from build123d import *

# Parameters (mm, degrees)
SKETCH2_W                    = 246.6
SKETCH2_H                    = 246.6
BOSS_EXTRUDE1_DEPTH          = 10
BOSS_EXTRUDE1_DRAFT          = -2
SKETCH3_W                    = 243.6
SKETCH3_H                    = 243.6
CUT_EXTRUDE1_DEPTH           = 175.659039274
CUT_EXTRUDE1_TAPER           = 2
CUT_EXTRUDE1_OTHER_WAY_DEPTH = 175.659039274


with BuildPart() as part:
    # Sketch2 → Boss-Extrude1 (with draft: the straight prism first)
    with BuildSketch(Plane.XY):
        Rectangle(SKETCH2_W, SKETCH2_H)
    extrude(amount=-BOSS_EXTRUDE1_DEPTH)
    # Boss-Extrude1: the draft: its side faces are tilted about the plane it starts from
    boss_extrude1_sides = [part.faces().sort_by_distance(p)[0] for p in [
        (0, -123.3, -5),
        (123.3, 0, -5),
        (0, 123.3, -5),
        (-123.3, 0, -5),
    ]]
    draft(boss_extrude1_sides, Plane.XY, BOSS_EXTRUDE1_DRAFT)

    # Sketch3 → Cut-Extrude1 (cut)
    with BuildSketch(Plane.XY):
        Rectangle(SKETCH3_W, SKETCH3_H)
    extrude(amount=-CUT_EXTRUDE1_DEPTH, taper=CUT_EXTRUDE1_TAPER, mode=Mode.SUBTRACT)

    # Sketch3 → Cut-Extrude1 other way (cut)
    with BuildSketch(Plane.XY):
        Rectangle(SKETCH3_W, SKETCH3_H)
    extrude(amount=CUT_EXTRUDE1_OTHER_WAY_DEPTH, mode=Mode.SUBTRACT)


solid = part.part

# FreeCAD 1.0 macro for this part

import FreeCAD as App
import Part
import Sketcher
Q = App.Units.Quantity


def faces_at(feature, points):
    """Names of the faces that lie closest to the given points."""
    faces = feature.Shape.Faces
    near = lambda p: min(range(len(faces)), key=lambda i: faces[i].distToShape(Part.Vertex(*p))[0])
    return sorted({f"Face{near(p) + 1}" for p in points})

doc = App.newDocument("Part")
body = doc.addObject("PartDesign::Body", "Body")

# Sketch on XY plane
sketch1 = body.newObject("Sketcher::SketchObject", "Sketch")
sketch1.AttachmentSupport = (doc.getObject("XY_Plane"), [""])
sketch1.MapMode = "FlatFace"
sketch1.addGeometry([
    Part.LineSegment(App.Vector(-123, 123, 0), App.Vector(-123, -123, 0)),
    Part.LineSegment(App.Vector(-123, -123, 0), App.Vector(123, -123, 0)),
    Part.LineSegment(App.Vector(123, -123, 0), App.Vector(123, 123, 0)),
    Part.LineSegment(App.Vector(123, 123, 0), App.Vector(-123, 123, 0)),
], False)
sketch1.addConstraint([
    Sketcher.Constraint("Coincident", 0, 2, 1, 1),
    Sketcher.Constraint("Coincident", 1, 2, 2, 1),
    Sketcher.Constraint("Coincident", 2, 2, 3, 1),
    Sketcher.Constraint("Coincident", 3, 2, 0, 1),
    Sketcher.Constraint("Vertical", 0),
    Sketcher.Constraint("Horizontal", 1),
    Sketcher.Constraint("Vertical", 2),
    Sketcher.Constraint("Horizontal", 3),
    Sketcher.Constraint("Symmetric", 0, 2, 2, 2, -1, 1),
    Sketcher.Constraint("Equal", 3, 0),
    Sketcher.Constraint("DistanceX", 1, 1, 1, 2, Q("246.6 mm")),
])
pad1 = body.newObject("PartDesign::Pad", "Pad")
pad1.Profile = sketch1
pad1.Length = 10
pad1.Reversed = True
doc.recompute()

draft = body.newObject("PartDesign::Draft", "Draft")
draft.Base = (pad1, faces_at(pad1, [
    (0, -123.3, -5),
    (123.3, 0, -5),
    (0, 123.3, -5),
    (-123.3, 0, -5),
]))
draft.NeutralPlane = (doc.getObject("XY_Plane"), [""])
draft.Angle = 2
draft.Reversed = True

# Sketch on XY plane
sketch2 = body.newObject("Sketcher::SketchObject", "Sketch001")
sketch2.AttachmentSupport = (doc.getObject("XY_Plane"), [""])
sketch2.MapMode = "FlatFace"
sketch2.addGeometry([
    Part.LineSegment(App.Vector(-122, 122, 0), App.Vector(-122, -122, 0)),
    Part.LineSegment(App.Vector(-122, -122, 0), App.Vector(122, -122, 0)),
    Part.LineSegment(App.Vector(122, -122, 0), App.Vector(122, 122, 0)),
    Part.LineSegment(App.Vector(122, 122, 0), App.Vector(-122, 122, 0)),
], False)
sketch2.addConstraint([
    Sketcher.Constraint("Coincident", 0, 2, 1, 1),
    Sketcher.Constraint("Coincident", 1, 2, 2, 1),
    Sketcher.Constraint("Coincident", 2, 2, 3, 1),
    Sketcher.Constraint("Coincident", 3, 2, 0, 1),
    Sketcher.Constraint("Vertical", 0),
    Sketcher.Constraint("Horizontal", 1),
    Sketcher.Constraint("Vertical", 2),
    Sketcher.Constraint("Horizontal", 3),
    Sketcher.Constraint("Symmetric", 0, 2, 2, 2, -1, 1),
    Sketcher.Constraint("Equal", 3, 0),
    Sketcher.Constraint("DistanceX", 1, 1, 1, 2, Q("243.6 mm")),
])
pocket1 = body.newObject("PartDesign::Pocket", "Pocket")
pocket1.Profile = sketch2
pocket1.Length = 175.659039
pocket1.TaperAngle = -2

# Sketch on XY plane
sketch3 = body.newObject("Sketcher::SketchObject", "Sketch002")
sketch3.AttachmentSupport = (doc.getObject("XY_Plane"), [""])
sketch3.MapMode = "FlatFace"
sketch3.addGeometry([
    Part.LineSegment(App.Vector(-122, 122, 0), App.Vector(-122, -122, 0)),
    Part.LineSegment(App.Vector(-122, -122, 0), App.Vector(122, -122, 0)),
    Part.LineSegment(App.Vector(122, -122, 0), App.Vector(122, 122, 0)),
    Part.LineSegment(App.Vector(122, 122, 0), App.Vector(-122, 122, 0)),
], False)
sketch3.addConstraint([
    Sketcher.Constraint("Coincident", 0, 2, 1, 1),
    Sketcher.Constraint("Coincident", 1, 2, 2, 1),
    Sketcher.Constraint("Coincident", 2, 2, 3, 1),
    Sketcher.Constraint("Coincident", 3, 2, 0, 1),
    Sketcher.Constraint("Vertical", 0),
    Sketcher.Constraint("Horizontal", 1),
    Sketcher.Constraint("Vertical", 2),
    Sketcher.Constraint("Horizontal", 3),
    Sketcher.Constraint("Symmetric", 0, 2, 2, 2, -1, 1),
    Sketcher.Constraint("Equal", 3, 0),
    Sketcher.Constraint("DistanceX", 1, 1, 1, 2, Q("243.6 mm")),
])
pocket2 = body.newObject("PartDesign::Pocket", "Pocket001")
pocket2.Profile = sketch3
pocket2.Length = 175.659039
pocket2.Reversed = True

doc.recompute()
